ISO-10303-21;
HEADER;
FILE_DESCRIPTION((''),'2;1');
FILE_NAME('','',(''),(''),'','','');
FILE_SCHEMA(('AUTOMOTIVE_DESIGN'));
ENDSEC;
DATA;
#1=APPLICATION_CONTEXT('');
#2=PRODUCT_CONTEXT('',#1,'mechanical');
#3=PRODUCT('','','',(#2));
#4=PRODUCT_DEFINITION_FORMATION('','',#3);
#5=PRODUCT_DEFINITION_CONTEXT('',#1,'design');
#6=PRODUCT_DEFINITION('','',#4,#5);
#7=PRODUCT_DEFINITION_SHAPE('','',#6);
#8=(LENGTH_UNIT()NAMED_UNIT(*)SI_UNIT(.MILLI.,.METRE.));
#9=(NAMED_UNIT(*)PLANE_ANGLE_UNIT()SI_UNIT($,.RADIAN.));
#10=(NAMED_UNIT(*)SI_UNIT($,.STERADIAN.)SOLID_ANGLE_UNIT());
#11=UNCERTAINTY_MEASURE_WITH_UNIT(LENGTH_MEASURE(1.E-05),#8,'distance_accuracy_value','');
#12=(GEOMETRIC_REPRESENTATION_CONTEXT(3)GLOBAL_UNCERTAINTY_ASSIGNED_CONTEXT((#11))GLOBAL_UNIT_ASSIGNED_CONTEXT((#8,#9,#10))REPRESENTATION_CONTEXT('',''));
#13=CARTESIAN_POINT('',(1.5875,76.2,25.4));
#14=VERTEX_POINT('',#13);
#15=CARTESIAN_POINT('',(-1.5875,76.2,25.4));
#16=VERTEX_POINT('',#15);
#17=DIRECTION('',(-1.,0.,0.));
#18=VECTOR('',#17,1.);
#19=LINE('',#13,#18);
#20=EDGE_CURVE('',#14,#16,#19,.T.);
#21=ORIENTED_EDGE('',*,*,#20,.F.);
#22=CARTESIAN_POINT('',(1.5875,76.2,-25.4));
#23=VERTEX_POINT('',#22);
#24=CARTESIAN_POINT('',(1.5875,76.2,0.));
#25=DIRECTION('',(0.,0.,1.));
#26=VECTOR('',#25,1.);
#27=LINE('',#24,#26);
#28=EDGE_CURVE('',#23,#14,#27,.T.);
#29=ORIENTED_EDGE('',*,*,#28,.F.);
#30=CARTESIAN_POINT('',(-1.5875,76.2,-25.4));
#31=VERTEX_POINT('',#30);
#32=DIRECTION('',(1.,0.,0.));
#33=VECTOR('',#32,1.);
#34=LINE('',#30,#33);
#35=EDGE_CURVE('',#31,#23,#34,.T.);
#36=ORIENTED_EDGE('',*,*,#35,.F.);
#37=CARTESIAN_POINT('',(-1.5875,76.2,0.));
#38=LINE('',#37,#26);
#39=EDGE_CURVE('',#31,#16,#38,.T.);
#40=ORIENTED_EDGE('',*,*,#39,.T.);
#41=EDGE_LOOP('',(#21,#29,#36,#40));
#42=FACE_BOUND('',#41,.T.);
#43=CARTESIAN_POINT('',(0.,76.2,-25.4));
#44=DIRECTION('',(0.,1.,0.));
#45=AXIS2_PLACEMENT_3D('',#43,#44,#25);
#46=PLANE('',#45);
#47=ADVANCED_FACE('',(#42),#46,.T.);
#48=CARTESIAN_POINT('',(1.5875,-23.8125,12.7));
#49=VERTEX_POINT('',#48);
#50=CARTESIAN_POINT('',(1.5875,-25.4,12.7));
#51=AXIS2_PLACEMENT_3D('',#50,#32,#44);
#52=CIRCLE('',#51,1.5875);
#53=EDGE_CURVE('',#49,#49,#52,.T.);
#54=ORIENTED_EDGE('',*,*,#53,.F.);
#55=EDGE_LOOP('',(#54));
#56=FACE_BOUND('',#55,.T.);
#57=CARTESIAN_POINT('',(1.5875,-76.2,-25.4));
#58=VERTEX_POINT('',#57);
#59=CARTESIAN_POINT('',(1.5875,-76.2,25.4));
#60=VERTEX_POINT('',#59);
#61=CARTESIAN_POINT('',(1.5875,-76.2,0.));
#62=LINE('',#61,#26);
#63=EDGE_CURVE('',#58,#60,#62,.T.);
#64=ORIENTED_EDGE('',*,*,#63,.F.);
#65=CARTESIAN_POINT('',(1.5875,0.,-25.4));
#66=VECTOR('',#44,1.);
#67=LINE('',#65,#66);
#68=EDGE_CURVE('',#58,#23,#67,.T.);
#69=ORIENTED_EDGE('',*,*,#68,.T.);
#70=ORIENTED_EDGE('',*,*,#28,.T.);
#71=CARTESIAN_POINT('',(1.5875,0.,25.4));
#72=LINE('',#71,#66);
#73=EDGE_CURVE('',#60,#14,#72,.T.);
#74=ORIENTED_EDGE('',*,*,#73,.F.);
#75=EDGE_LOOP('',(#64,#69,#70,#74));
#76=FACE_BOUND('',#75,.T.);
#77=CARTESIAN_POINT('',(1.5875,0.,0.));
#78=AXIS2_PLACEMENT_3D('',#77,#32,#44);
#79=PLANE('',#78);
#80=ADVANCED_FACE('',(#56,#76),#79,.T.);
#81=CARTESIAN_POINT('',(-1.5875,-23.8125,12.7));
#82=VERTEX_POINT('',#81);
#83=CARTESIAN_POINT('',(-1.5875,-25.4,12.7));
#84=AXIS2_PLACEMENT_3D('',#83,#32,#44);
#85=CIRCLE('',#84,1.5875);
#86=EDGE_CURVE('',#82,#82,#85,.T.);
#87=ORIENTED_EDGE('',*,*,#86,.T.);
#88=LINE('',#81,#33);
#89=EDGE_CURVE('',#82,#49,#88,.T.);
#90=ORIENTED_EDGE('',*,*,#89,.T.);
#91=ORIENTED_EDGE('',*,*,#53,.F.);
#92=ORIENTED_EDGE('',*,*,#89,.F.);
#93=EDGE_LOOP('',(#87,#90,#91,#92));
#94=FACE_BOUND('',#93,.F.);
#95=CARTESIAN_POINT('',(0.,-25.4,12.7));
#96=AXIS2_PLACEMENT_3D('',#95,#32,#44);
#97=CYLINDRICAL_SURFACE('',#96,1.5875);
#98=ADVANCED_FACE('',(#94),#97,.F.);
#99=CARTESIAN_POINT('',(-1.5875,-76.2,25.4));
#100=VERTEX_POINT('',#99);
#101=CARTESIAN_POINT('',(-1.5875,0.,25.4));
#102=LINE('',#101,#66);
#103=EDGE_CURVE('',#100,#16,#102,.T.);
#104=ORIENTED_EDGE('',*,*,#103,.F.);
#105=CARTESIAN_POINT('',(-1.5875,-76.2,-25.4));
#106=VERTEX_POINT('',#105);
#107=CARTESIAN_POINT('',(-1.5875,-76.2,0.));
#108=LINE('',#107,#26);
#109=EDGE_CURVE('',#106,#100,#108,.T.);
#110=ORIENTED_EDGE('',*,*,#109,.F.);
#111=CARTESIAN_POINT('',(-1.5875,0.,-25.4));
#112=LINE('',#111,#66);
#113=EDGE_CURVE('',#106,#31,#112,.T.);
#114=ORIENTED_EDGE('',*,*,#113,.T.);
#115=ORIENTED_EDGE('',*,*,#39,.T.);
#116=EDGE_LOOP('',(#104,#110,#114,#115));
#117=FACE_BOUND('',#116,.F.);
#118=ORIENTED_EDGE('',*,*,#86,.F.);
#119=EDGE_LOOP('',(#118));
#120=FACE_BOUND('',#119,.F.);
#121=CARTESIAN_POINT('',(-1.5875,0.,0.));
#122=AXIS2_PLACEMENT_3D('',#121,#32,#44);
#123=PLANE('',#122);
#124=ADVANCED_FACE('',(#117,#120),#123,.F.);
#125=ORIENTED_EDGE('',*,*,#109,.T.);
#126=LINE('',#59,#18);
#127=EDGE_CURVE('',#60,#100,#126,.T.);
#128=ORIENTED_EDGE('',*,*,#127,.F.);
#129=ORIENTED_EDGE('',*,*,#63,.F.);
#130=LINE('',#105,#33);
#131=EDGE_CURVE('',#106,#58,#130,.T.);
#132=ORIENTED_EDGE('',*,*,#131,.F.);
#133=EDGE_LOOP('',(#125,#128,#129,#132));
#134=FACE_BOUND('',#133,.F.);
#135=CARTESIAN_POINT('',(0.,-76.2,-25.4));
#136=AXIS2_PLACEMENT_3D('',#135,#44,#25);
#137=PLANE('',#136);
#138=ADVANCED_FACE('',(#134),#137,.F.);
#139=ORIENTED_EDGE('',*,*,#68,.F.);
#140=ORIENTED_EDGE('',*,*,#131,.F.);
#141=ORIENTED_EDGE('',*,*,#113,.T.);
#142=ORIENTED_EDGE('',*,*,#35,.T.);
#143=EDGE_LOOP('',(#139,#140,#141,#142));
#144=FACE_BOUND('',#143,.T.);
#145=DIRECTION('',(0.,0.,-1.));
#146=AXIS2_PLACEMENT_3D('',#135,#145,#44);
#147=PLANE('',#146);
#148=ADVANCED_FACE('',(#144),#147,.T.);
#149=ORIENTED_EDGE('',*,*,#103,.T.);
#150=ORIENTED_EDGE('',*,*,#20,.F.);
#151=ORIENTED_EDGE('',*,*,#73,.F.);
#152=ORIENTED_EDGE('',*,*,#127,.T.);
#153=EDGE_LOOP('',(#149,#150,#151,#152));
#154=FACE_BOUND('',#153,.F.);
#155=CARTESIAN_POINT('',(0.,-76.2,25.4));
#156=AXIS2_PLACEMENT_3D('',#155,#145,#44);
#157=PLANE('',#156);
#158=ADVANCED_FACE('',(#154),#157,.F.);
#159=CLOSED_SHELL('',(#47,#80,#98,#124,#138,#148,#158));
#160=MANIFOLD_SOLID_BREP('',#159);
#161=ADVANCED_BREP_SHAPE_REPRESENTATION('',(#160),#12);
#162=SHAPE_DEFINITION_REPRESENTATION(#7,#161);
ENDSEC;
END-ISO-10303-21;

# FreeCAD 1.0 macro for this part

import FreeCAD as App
import Part
import Sketcher
from FreeCAD import Vector
Q = App.Units.Quantity

doc = App.newDocument("Part")
params = doc.addObject("Spreadsheet::Sheet", "Params")
for row, (alias, value) in enumerate([
    ("sketch1_width", "6 in"),
    ("sketch1_height", "2 in"),
    ("pad1_length", "0.125 in"),
    ("sketch2_diameter", "0.125 in"),
    ("pocket1_length", "0.125 in"),
], start=1):
    params.set(f"A{row}", alias)
    params.set(f"B{row}", "=" + value)
    params.setAlias(f"B{row}", alias)

body = doc.addObject("PartDesign::Body", "Body")

# Sketch on YZ plane
sketch1 = doc.addObject("Sketcher::SketchObject", "Sketch")
body.addObject(sketch1)
sketch1.AttachmentSupport = (doc.YZ_Plane, [""])
sketch1.MapMode = "FlatFace"
sketch1.addGeometry([
    Part.LineSegment(Vector(-76, 25, 0), Vector(-76, -25, 0)),
    Part.LineSegment(Vector(-76, -25, 0), Vector(76, -25, 0)),
    Part.LineSegment(Vector(76, -25, 0), Vector(76, 25, 0)),
    Part.LineSegment(Vector(76, 25, 0), Vector(-76, 25, 0)),
], False)
sketch1.addConstraint([
    Sketcher.Constraint("Coincident", 0, 2, 1, 1),
    Sketcher.Constraint("Coincident", 1, 2, 2, 1),
    Sketcher.Constraint("Coincident", 2, 2, 3, 1),
    Sketcher.Constraint("Coincident", 3, 2, 0, 1),
    Sketcher.Constraint("Vertical", 0),
    Sketcher.Constraint("Horizontal", 1),
    Sketcher.Constraint("Vertical", 2),
    Sketcher.Constraint("Horizontal", 3),
    Sketcher.Constraint("Symmetric", 0, 2, 2, 2, -1, 1),
    Sketcher.Constraint("DistanceX", 1, 1, 1, 2, Q("6 in")),
    Sketcher.Constraint("DistanceY", 0, 2, 0, 1, Q("2 in")),
])
sketch1.setExpression("Constraints[9]", "Params.sketch1_width")
sketch1.setExpression("Constraints[10]", "Params.sketch1_height")
pad1 = doc.addObject("PartDesign::Pad", "Pad")
body.addObject(pad1)
pad1.Profile = sketch1
pad1.setExpression("Length", "Params.pad1_length")
pad1.Midplane = True

# Sketch on YZ plane
sketch2 = doc.addObject("Sketcher::SketchObject", "Sketch001")
body.addObject(sketch2)
sketch2.AttachmentSupport = (doc.YZ_Plane, [""])
sketch2.MapMode = "FlatFace"
sketch2.addGeometry(Part.Circle(Vector(-25.4, 12.7, 0), Vector(0, 0, 1), 1.6), False)
sketch2.addConstraint([
    Sketcher.Constraint("Diameter", 0, Q("0.125 in")),
    Sketcher.Constraint("DistanceX", 0, 3, -1, 1, Q("1 in")),
    Sketcher.Constraint("DistanceY", -1, 1, 0, 3, Q("0.5 in")),
])
sketch2.setExpression("Constraints[0]", "Params.sketch2_diameter")
pocket1 = doc.addObject("PartDesign::Pocket", "Pocket")
body.addObject(pocket1)
pocket1.Profile = sketch2
pocket1.setExpression("Length", "Params.pocket1_length")
pocket1.Midplane = True

doc.recompute()
